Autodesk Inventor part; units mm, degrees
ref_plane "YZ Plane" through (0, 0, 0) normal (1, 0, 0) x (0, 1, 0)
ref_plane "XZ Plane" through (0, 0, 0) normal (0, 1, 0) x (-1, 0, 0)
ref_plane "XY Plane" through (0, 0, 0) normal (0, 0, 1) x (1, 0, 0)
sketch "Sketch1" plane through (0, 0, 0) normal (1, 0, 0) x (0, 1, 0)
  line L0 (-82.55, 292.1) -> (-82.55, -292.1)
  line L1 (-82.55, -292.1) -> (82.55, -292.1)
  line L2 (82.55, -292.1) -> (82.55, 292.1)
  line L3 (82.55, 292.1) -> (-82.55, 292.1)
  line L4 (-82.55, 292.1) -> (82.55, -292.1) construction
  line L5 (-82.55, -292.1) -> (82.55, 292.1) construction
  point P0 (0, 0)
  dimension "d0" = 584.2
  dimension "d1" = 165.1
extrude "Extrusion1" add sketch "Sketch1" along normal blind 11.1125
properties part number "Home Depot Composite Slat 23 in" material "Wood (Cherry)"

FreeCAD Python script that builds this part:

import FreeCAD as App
import Part
import Sketcher
from FreeCAD import Vector
Q = App.Units.Quantity

doc = App.newDocument("Part")
body = doc.addObject("PartDesign::Body", "Body")

# Sketch on YZ plane
sketch1 = body.newObject("Sketcher::SketchObject", "Sketch")
sketch1.AttachmentSupport = (doc.getObject("YZ_Plane"), [""])
sketch1.MapMode = "FlatFace"
sketch1.addGeometry([
    Part.LineSegment(Vector(83, 292, 0), Vector(-83, 292, 0)),
    Part.LineSegment(Vector(-83, 292, 0), Vector(-83, -292, 0)),
    Part.LineSegment(Vector(-83, -292, 0), Vector(83, -292, 0)),
    Part.LineSegment(Vector(83, -292, 0), Vector(83, 292, 0)),
], False)
sketch1.addConstraint([
    Sketcher.Constraint("Coincident", 0, 2, 1, 1),
    Sketcher.Constraint("Coincident", 1, 2, 2, 1),
    Sketcher.Constraint("Coincident", 2, 2, 3, 1),
    Sketcher.Constraint("Coincident", 3, 2, 0, 1),
    Sketcher.Constraint("Horizontal", 0),
    Sketcher.Constraint("Vertical", 1),
    Sketcher.Constraint("Horizontal", 2),
    Sketcher.Constraint("Vertical", 3),
    Sketcher.Constraint("Symmetric", 0, 2, 2, 2, -1, 1),
    Sketcher.Constraint("DistanceY", 1, 2, 1, 1, Q("23 in")),
    Sketcher.Constraint("DistanceX", 0, 2, 0, 1, Q("6.5 in")),
])
pad1 = body.newObject("PartDesign::Pad", "Pad")
pad1.Profile = sketch1
pad1.Length = Q("0.4375 in")

doc.recompute()
